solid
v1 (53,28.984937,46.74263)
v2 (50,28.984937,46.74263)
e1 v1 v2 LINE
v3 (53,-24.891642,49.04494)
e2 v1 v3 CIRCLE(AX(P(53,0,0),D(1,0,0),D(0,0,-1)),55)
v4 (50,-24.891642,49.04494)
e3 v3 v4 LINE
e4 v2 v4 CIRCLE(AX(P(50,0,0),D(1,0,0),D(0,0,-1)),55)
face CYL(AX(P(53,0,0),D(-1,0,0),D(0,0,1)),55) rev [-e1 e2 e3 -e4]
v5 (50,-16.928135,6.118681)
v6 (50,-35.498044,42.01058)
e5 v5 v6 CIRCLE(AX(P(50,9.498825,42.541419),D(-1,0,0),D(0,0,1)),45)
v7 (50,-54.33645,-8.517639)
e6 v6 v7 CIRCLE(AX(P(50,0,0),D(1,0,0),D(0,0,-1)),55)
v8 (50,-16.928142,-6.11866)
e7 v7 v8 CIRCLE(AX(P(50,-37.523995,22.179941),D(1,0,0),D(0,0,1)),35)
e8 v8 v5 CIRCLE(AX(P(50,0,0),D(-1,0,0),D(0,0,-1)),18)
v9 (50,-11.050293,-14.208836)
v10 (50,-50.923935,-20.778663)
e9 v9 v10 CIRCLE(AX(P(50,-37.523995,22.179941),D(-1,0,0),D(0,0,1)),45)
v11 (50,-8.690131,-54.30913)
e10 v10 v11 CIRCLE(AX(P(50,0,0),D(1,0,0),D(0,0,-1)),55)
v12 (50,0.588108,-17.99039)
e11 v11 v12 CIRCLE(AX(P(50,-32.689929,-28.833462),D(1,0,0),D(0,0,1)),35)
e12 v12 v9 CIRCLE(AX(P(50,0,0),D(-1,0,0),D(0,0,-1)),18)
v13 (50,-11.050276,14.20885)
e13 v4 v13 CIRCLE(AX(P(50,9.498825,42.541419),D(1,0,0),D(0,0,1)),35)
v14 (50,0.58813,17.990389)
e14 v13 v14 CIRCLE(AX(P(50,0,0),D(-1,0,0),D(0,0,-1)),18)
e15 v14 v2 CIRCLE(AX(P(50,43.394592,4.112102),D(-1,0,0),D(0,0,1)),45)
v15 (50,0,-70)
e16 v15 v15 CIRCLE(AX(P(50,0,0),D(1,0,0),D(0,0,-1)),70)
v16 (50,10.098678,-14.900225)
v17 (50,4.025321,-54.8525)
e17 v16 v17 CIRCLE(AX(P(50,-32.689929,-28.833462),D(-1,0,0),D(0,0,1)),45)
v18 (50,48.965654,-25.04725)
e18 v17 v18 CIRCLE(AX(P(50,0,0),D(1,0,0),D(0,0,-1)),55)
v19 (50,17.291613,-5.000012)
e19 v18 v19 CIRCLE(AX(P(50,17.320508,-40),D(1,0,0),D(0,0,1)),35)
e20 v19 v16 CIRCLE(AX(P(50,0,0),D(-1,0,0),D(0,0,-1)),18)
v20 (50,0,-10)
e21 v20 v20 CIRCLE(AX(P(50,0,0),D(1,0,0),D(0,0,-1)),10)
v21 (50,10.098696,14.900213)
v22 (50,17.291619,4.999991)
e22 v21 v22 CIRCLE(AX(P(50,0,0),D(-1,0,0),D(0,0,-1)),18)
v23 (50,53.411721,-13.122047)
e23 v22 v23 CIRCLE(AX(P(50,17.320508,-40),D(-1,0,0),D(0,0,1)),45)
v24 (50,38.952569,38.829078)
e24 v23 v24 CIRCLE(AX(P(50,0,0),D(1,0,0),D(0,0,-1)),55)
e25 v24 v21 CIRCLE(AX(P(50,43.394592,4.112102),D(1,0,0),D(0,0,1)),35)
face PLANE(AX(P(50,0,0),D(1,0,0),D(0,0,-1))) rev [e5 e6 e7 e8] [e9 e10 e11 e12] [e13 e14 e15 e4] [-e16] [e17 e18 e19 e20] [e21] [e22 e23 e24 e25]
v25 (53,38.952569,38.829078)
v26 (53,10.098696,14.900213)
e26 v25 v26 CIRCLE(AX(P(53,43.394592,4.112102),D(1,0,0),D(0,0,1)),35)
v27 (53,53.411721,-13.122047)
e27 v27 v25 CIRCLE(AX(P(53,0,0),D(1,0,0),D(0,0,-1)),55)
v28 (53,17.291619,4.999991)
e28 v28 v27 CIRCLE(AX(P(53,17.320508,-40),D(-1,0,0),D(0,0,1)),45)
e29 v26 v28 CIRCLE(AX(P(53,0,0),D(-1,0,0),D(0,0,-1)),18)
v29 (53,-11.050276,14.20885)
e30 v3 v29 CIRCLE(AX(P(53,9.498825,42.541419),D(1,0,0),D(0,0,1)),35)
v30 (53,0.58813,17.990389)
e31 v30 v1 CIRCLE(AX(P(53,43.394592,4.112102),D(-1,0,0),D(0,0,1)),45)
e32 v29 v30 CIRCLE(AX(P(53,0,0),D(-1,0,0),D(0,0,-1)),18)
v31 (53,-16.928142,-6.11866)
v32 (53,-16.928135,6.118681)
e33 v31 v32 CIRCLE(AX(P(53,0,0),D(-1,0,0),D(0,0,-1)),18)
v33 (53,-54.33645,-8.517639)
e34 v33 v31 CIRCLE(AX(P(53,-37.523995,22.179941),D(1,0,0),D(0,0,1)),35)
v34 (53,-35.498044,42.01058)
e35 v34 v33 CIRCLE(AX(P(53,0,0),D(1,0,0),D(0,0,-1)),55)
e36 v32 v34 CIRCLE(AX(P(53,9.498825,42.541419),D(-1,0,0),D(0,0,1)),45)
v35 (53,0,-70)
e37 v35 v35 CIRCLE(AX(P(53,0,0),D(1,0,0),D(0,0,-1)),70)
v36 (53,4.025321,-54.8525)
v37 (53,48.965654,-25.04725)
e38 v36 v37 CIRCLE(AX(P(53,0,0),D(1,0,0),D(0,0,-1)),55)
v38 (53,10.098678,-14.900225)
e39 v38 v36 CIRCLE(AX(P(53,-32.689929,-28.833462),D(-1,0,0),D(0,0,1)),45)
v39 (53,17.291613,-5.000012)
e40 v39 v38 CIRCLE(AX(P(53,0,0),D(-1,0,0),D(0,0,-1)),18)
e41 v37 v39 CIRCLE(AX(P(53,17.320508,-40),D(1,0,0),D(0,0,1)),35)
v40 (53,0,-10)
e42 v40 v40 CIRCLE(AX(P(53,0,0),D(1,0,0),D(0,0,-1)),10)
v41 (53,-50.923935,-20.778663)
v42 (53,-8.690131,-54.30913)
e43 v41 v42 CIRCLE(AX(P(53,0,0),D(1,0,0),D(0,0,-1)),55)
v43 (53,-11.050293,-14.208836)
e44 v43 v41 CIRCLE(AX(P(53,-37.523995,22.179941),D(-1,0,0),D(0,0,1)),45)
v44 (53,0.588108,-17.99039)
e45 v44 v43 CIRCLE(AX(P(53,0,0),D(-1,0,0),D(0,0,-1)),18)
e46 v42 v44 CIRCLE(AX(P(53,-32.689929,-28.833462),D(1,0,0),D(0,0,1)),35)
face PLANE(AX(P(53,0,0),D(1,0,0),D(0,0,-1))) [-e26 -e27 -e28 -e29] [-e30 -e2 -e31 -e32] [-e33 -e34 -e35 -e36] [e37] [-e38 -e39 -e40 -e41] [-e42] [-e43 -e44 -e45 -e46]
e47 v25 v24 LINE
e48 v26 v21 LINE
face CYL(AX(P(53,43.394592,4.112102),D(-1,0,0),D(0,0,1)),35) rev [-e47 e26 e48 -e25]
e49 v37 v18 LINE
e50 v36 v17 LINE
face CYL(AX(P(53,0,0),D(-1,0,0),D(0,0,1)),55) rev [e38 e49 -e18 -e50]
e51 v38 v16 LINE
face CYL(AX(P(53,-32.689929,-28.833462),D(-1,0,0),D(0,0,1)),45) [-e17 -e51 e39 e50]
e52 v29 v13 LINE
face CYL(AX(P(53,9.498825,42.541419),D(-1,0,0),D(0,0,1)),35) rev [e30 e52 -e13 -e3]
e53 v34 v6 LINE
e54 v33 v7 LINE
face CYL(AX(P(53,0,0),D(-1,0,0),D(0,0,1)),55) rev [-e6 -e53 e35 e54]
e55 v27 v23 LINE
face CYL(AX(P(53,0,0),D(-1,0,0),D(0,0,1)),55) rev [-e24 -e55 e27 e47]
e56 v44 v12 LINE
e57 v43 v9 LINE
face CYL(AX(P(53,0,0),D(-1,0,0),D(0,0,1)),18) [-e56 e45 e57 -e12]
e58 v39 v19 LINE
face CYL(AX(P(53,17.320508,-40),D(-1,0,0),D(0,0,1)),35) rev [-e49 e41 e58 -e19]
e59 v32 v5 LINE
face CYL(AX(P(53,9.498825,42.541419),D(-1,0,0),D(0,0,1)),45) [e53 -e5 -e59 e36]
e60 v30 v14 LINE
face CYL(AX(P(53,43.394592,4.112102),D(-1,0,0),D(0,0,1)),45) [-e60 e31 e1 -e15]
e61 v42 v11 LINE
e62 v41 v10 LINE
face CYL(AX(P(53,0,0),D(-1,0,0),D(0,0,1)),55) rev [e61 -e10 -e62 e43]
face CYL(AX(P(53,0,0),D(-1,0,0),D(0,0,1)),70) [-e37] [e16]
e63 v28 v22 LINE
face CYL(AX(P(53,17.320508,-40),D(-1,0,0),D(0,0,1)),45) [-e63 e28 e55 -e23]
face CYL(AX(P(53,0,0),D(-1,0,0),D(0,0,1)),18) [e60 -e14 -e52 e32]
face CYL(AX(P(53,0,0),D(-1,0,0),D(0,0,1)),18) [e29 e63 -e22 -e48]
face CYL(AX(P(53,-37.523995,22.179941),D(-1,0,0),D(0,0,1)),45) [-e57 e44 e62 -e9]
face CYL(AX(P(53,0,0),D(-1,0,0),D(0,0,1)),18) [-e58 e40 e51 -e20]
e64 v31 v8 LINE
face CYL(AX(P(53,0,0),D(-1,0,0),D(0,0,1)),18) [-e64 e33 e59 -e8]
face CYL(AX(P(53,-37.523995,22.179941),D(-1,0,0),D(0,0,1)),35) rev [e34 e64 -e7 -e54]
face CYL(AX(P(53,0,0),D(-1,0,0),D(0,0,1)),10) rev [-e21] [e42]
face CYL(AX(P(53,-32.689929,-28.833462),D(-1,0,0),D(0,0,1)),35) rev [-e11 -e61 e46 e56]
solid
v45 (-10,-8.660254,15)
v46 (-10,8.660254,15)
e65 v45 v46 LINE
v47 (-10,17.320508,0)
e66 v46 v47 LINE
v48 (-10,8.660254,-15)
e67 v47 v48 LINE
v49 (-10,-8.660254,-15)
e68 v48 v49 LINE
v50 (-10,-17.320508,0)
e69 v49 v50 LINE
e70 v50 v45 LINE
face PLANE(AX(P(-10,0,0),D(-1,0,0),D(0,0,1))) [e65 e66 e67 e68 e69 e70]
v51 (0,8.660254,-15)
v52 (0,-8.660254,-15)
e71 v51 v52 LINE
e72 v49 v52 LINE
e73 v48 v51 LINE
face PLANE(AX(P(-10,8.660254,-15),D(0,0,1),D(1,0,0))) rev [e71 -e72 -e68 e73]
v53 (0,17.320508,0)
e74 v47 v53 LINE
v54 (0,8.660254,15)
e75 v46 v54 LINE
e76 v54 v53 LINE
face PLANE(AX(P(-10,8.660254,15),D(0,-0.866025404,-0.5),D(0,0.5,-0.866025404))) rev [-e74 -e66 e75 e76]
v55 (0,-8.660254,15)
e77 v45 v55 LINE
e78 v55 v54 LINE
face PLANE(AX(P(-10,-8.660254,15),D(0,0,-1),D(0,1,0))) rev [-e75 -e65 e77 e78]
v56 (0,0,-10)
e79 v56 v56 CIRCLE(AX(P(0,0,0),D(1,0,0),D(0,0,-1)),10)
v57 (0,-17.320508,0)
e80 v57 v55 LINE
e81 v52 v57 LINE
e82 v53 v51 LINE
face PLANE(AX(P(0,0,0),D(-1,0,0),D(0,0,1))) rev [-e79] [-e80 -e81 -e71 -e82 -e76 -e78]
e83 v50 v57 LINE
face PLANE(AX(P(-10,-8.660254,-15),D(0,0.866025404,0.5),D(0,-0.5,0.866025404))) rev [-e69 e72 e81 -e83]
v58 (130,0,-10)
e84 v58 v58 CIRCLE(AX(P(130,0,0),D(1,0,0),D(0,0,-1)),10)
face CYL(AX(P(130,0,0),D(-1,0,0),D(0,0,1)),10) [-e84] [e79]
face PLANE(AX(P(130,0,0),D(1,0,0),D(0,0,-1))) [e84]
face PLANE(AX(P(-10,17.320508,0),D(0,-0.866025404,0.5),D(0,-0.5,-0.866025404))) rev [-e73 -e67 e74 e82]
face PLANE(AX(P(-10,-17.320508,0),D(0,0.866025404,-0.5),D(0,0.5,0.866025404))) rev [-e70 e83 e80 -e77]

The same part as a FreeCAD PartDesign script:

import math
import FreeCAD as App
import Part
import Sketcher

V = App.Vector
Q = App.Units.Quantity

doc = App.newDocument("Part")
body = doc.addObject("PartDesign::Body", "Body")

sketch1 = body.newObject("Sketcher::SketchObject", "Sketch")
sketch1.AttachmentSupport = (doc.getObject("YZ_Plane"), [""])
sketch1.MapMode = "FlatFace"
sketch1.addGeometry(Part.Circle(V(0, 0, 0), V(0, 0, 1), 10), False)
sketch1.addConstraint(Sketcher.Constraint("Coincident", 0, 3, -1, 1))
sketch1.addConstraint(Sketcher.Constraint("Diameter", 0, Q("20 mm")))
pad1 = body.newObject("PartDesign::Pad", "Pad")
pad1.Profile = sketch1
pad1.Length = 130

sketch2 = body.newObject("Sketcher::SketchObject", "Sketch001")
sketch2.AttachmentSupport = (doc.getObject("YZ_Plane"), [""])
sketch2.MapMode = "FlatFace"
sketch2.addGeometry(Part.LineSegment(V(17, 0, 0), V(9, -15, 0)), False)
sketch2.addGeometry(Part.LineSegment(V(9, -15, 0), V(-9, -15, 0)), False)
sketch2.addGeometry(Part.LineSegment(V(-9, -15, 0), V(-17, 0, 0)), False)
sketch2.addGeometry(Part.LineSegment(V(-17, 0, 0), V(-9, 15, 0)), False)
sketch2.addGeometry(Part.LineSegment(V(-9, 15, 0), V(9, 15, 0)), False)
sketch2.addGeometry(Part.LineSegment(V(9, 15, 0), V(17, 0, 0)), False)
sketch2.addConstraint(Sketcher.Constraint("Coincident", 0, 2, 1, 1))
sketch2.addConstraint(Sketcher.Constraint("Coincident", 1, 2, 2, 1))
sketch2.addConstraint(Sketcher.Constraint("Coincident", 2, 2, 3, 1))
sketch2.addConstraint(Sketcher.Constraint("Coincident", 3, 2, 4, 1))
sketch2.addConstraint(Sketcher.Constraint("Coincident", 4, 2, 5, 1))
sketch2.addConstraint(Sketcher.Constraint("Coincident", 5, 2, 0, 1))
sketch2.addConstraint(Sketcher.Constraint("Horizontal", 1))
sketch2.addConstraint(Sketcher.Constraint("Horizontal", 4))
sketch2.addConstraint(Sketcher.Constraint("Symmetric", 0, 2, 3, 2, -1, 1))
sketch2.addConstraint(Sketcher.Constraint("Symmetric", 2, 2, 5, 2, -1, 1))
sketch2.addConstraint(Sketcher.Constraint("PointOnObject", 2, 2, -1))
sketch2.addConstraint(Sketcher.Constraint("Parallel", 2, 5))
sketch2.addConstraint(Sketcher.Constraint("Vertical", 1, 2, 3, 2))
sketch2.addConstraint(Sketcher.Constraint("Angle", 0, Q("-120 deg")))
sketch2.addConstraint(Sketcher.Constraint("DistanceY", 0, 2, -1, 1, Q("15 mm")))
sketch2.addConstraint(Sketcher.Constraint("DistanceX", 1, 2, 1, 1, Q("17.320508 mm")))
pad2 = body.newObject("PartDesign::Pad", "Pad001")
pad2.Profile = sketch2
pad2.Length = 10
pad2.Reversed = True
body2 = doc.addObject("PartDesign::Body", "Body001")

sketch3 = body2.newObject("Sketcher::SketchObject", "Sketch002")
sketch3.AttachmentSupport = (doc.getObject("YZ_Plane001"), [""])
sketch3.MapMode = "FlatFace"
sketch3.AttachmentOffset = App.Placement(V(0, 0, 50), App.Rotation())
sketch3.addGeometry(Part.Circle(V(0, 0, 0), V(0, 0, 1), 70), False)
sketch3.addGeometry(Part.ArcOfCircle(Part.Circle(V(0, 0, 0), V(0, 0, 1), 18), math.radians(160), math.radians(200)), False)
sketch3.addGeometry(Part.ArcOfCircle(Part.Circle(V(-38, 22, 0), V(0, 0, 1), 35), math.radians(-119), math.radians(-54)), False)
sketch3.addGeometry(Part.ArcOfCircle(Part.Circle(V(0, 0, 0), V(0, 0, 1), 55), math.radians(130), math.radians(189)), False)
sketch3.addGeometry(Part.ArcOfCircle(Part.Circle(V(9, 43, 0), V(0, 0, 1), 45), math.radians(-179), math.radians(-126)), False)
sketch3.addGeometry(Part.ArcOfCircle(Part.Circle(V(0, 0, 0), V(0, 0, 1), 18), math.radians(-128), math.radians(-88)), False)
sketch3.addGeometry(Part.ArcOfCircle(Part.Circle(V(-33, -29, 0), V(0, 0, 1), 35), math.radians(-47), math.radians(18)), False)
sketch3.addGeometry(Part.ArcOfCircle(Part.Circle(V(0, 0, 0), V(0, 0, 1), 55), math.radians(-158), math.radians(-99)), False)
sketch3.addGeometry(Part.ArcOfCircle(Part.Circle(V(-38, 22, 0), V(0, 0, 1), 45), math.radians(-107), math.radians(-54)), False)
sketch3.addGeometry(Part.ArcOfCircle(Part.Circle(V(0, 0, 0), V(0, 0, 1), 18), math.radians(88), math.radians(128)), False)
sketch3.addGeometry(Part.ArcOfCircle(Part.Circle(V(9, 43, 0), V(0, 0, 1), 35), math.radians(169), math.radians(234)), False)
sketch3.addGeometry(Part.ArcOfCircle(Part.Circle(V(0, 0, 0), V(0, 0, 1), 55), math.radians(58), math.radians(117)), False)
sketch3.addGeometry(Part.ArcOfCircle(Part.Circle(V(43, 4, 0), V(0, 0, 1), 45), math.radians(109), math.radians(162)), False)
sketch3.addGeometry(Part.ArcOfCircle(Part.Circle(V(0, 0, 0), V(0, 0, 1), 55), math.radians(-14), math.radians(45)), False)
sketch3.addGeometry(Part.ArcOfCircle(Part.Circle(V(17, -40, 0), V(0, 0, 1), 45), math.radians(37), math.radians(90)), False)
sketch3.addGeometry(Part.ArcOfCircle(Part.Circle(V(0, 0, 0), V(0, 0, 1), 18), math.radians(16), math.radians(56)), False)
sketch3.addGeometry(Part.ArcOfCircle(Part.Circle(V(43, 4, 0), V(0, 0, 1), 35), math.radians(97), math.radians(162)), False)
sketch3.addGeometry(Part.Circle(V(0, 0, 0), V(0, 0, 1), 10), False)
sketch3.addGeometry(Part.ArcOfCircle(Part.Circle(V(0, 0, 0), V(0, 0, 1), 18), math.radians(-56), math.radians(-16)), False)
sketch3.addGeometry(Part.ArcOfCircle(Part.Circle(V(17, -40, 0), V(0, 0, 1), 35), math.radians(25), math.radians(90)), False)
sketch3.addGeometry(Part.ArcOfCircle(Part.Circle(V(0, 0, 0), V(0, 0, 1), 55), math.radians(-86), math.radians(-27)), False)
sketch3.addGeometry(Part.ArcOfCircle(Part.Circle(V(-33, -29, 0), V(0, 0, 1), 45), math.radians(-35), math.radians(18)), False)
sketch3.addConstraint(Sketcher.Constraint("Coincident", 1, 2, 2, 2))
sketch3.addConstraint(Sketcher.Constraint("Coincident", 2, 1, 3, 2))
sketch3.addConstraint(Sketcher.Constraint("Coincident", 3, 1, 4, 1))
sketch3.addConstraint(Sketcher.Constraint("Coincident", 4, 2, 1, 1))
sketch3.addConstraint(Sketcher.Constraint("Coincident", 5, 2, 6, 2))
sketch3.addConstraint(Sketcher.Constraint("Coincident", 6, 1, 7, 2))
sketch3.addConstraint(Sketcher.Constraint("Coincident", 7, 1, 8, 1))
sketch3.addConstraint(Sketcher.Constraint("Coincident", 8, 2, 5, 1))
sketch3.addConstraint(Sketcher.Constraint("Coincident", 9, 2, 10, 2))
sketch3.addConstraint(Sketcher.Constraint("Coincident", 10, 1, 11, 2))
sketch3.addConstraint(Sketcher.Constraint("Coincident", 11, 1, 12, 1))
sketch3.addConstraint(Sketcher.Constraint("Coincident", 12, 2, 9, 1))
sketch3.addConstraint(Sketcher.Constraint("Coincident", 13, 1, 14, 1))
sketch3.addConstraint(Sketcher.Constraint("Coincident", 14, 2, 15, 1))
sketch3.addConstraint(Sketcher.Constraint("Coincident", 15, 2, 16, 2))
sketch3.addConstraint(Sketcher.Constraint("Coincident", 16, 1, 13, 2))
sketch3.addConstraint(Sketcher.Constraint("Coincident", 18, 2, 19, 2))
sketch3.addConstraint(Sketcher.Constraint("Coincident", 19, 1, 20, 2))
sketch3.addConstraint(Sketcher.Constraint("Coincident", 20, 1, 21, 1))
sketch3.addConstraint(Sketcher.Constraint("Coincident", 21, 2, 18, 1))
sketch3.addConstraint(Sketcher.Constraint("Coincident", 0, 3, -1, 1))
sketch3.addConstraint(Sketcher.Constraint("Coincident", 1, 3, -1, 1))
sketch3.addConstraint(Sketcher.Constraint("Coincident", 3, 3, -1, 1))
sketch3.addConstraint(Sketcher.Constraint("Coincident", 5, 3, -1, 1))
sketch3.addConstraint(Sketcher.Constraint("Coincident", 7, 3, -1, 1))
sketch3.addConstraint(Sketcher.Constraint("Coincident", 9, 3, -1, 1))
sketch3.addConstraint(Sketcher.Constraint("Coincident", 11, 3, -1, 1))
sketch3.addConstraint(Sketcher.Constraint("Coincident", 13, 3, -1, 1))
sketch3.addConstraint(Sketcher.Constraint("Coincident", 15, 3, -1, 1))
sketch3.addConstraint(Sketcher.Constraint("Coincident", 17, 3, -1, 1))
sketch3.addConstraint(Sketcher.Constraint("Coincident", 18, 3, -1, 1))
sketch3.addConstraint(Sketcher.Constraint("Coincident", 20, 3, -1, 1))
sketch3.addConstraint(Sketcher.Constraint("Coincident", 8, 3, 2, 3))
sketch3.addConstraint(Sketcher.Constraint("Coincident", 10, 3, 4, 3))
sketch3.addConstraint(Sketcher.Constraint("Coincident", 16, 3, 12, 3))
sketch3.addConstraint(Sketcher.Constraint("Coincident", 19, 3, 14, 3))
sketch3.addConstraint(Sketcher.Constraint("Coincident", 21, 3, 6, 3))
sketch3.addConstraint(Sketcher.Constraint("Equal", 1, 5))
sketch3.addConstraint(Sketcher.Constraint("Equal", 2, 6))
sketch3.addConstraint(Sketcher.Constraint("Equal", 3, 7))
sketch3.addConstraint(Sketcher.Constraint("Equal", 4, 8))
sketch3.addConstraint(Sketcher.Constraint("Equal", 5, 9))
sketch3.addConstraint(Sketcher.Constraint("Equal", 6, 10))
sketch3.addConstraint(Sketcher.Constraint("Equal", 7, 11))
sketch3.addConstraint(Sketcher.Constraint("Equal", 8, 12))
sketch3.addConstraint(Sketcher.Constraint("Equal", 11, 13))
sketch3.addConstraint(Sketcher.Constraint("Equal", 12, 14))
sketch3.addConstraint(Sketcher.Constraint("Equal", 9, 15))
sketch3.addConstraint(Sketcher.Constraint("Equal", 10, 16))
sketch3.addConstraint(Sketcher.Constraint("Equal", 15, 18))
sketch3.addConstraint(Sketcher.Constraint("Equal", 16, 19))
sketch3.addConstraint(Sketcher.Constraint("Equal", 13, 20))
sketch3.addConstraint(Sketcher.Constraint("Equal", 14, 21))
sketch3.addConstraint(Sketcher.Constraint("Diameter", 0, Q("140 mm")))
sketch3.addConstraint(Sketcher.Constraint("Diameter", 17, Q("20 mm")))
sketch3.addConstraint(Sketcher.Constraint("Radius", 1, Q("18 mm")))
sketch3.addConstraint(Sketcher.Constraint("Radius", 2, Q("35 mm")))
sketch3.addConstraint(Sketcher.Constraint("Radius", 3, Q("55 mm")))
sketch3.addConstraint(Sketcher.Constraint("Radius", 4, Q("45 mm")))
sketch3.addConstraint(Sketcher.Constraint("DistanceY", 14, 3, -1, 1, Q("40 mm")))
sketch3.addConstraint(Sketcher.Constraint("DistanceY", 8, 3, 10, 1, Q("26.865 mm")))
sketch3.addConstraint(Sketcher.Constraint("DistanceY", 20, 1, -1, 1, Q("54.8525 mm")))
sketch3.addConstraint(Sketcher.Constraint("DistanceX", 6, 3, 6, 1, Q("23.999798 mm")))
sketch3.addConstraint(Sketcher.Constraint("DistanceY", 21, 3, 7, 1, Q("8.054799 mm")))
sketch3.addConstraint(Sketcher.Constraint("DistanceX", 7, 1, 4, 2, Q("33.995801 mm")))
sketch3.addConstraint(Sketcher.Constraint("DistanceX", 8, 2, 5, 2, Q("11.638401 mm")))
sketch3.addConstraint(Sketcher.Constraint("DistanceX", -1, 1, 14, 3, Q("17.320508 mm")))
sketch3.addConstraint(Sketcher.Constraint("DistanceY", -1, 1, 11, 1, Q("46.74263 mm")))
sketch3.addConstraint(Sketcher.Constraint("DistanceX", -1, 1, 12, 2, Q("0.58813 mm")))
pad3 = body2.newObject("PartDesign::Pad", "Pad002")
pad3.Profile = sketch3
pad3.Length = 3

doc.recompute()
